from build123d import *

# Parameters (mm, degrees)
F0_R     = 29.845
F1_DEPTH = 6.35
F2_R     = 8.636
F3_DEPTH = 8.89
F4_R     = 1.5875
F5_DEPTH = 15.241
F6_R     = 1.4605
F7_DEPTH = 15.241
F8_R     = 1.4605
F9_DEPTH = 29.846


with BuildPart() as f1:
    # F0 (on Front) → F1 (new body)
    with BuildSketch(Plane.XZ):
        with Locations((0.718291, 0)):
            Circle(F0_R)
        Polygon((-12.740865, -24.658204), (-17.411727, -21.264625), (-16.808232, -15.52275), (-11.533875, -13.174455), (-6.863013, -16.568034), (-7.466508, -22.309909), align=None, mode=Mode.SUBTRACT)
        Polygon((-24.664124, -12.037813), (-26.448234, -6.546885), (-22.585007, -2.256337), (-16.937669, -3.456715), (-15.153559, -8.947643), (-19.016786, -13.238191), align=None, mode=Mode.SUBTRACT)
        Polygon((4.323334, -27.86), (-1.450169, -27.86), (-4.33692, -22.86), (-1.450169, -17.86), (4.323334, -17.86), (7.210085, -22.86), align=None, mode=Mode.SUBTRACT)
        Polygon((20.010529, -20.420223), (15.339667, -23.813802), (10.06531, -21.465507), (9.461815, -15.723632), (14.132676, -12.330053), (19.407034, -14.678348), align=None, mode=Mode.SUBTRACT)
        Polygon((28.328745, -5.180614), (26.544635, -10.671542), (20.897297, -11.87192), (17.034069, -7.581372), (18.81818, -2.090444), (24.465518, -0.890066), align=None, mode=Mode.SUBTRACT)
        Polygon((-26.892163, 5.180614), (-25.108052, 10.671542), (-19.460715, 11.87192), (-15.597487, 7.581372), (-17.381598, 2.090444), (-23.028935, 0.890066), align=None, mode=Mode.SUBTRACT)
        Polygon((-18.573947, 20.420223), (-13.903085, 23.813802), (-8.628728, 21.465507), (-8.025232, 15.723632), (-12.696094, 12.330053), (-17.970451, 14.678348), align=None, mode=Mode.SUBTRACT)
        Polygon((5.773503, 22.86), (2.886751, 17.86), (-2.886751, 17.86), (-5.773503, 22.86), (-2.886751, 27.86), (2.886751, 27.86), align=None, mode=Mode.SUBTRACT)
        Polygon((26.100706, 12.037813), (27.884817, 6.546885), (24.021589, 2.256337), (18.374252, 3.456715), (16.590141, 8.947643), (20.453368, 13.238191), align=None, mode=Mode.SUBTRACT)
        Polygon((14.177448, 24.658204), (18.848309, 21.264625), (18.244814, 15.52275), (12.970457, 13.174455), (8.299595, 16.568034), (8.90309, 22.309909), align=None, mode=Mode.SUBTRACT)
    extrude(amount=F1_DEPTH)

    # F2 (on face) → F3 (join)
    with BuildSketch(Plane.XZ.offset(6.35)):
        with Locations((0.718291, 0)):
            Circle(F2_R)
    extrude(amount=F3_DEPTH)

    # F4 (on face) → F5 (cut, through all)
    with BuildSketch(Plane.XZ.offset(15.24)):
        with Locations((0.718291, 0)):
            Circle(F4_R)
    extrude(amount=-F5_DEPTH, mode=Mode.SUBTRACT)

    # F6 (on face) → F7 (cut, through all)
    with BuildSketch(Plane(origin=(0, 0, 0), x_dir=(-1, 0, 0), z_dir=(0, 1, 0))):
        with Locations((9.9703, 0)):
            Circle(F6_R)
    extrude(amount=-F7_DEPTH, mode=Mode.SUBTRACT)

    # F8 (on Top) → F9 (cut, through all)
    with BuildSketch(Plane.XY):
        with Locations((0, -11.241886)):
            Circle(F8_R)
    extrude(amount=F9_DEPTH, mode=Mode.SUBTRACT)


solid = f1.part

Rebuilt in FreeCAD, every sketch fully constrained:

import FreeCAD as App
import Part
import Sketcher
Q = App.Units.Quantity


def add_polygon(sketch, points):
    """Adds a closed chain of lines whose ends are joined by coincident constraints."""
    first, n = sketch.GeometryCount, len(points)
    for a, b in zip(points, points[1:] + points[:1]):
        sketch.addGeometry(Part.LineSegment(App.Vector(*a, 0), App.Vector(*b, 0)), False)
    for i in range(n):
        sketch.addConstraint(Sketcher.Constraint("Coincident", first + i, 2, first + (i + 1) % n, 1))

doc = App.newDocument("Part")
body = doc.addObject("PartDesign::Body", "Body")

sketch1 = doc.addObject("Sketcher::SketchObject", "Sketch")
body.addObject(sketch1)
sketch1.AttachmentSupport = (doc.XZ_Plane, [""])
sketch1.MapMode = "FlatFace"
sketch1.addGeometry(Part.Circle(App.Vector(0.718291, 0, 0), App.Vector(0, 0, 1), 29.845), False)
add_polygon(sketch1, [(-7.466508, -22.309909), (-12.740865, -24.658204), (-17.411727, -21.264625), (-16.808232, -15.52275), (-11.533875, -13.174455), (-6.863013, -16.568034)])
add_polygon(sketch1, [(-19.016786, -13.238191), (-24.664124, -12.037813), (-26.448234, -6.546885), (-22.585007, -2.256337), (-16.937669, -3.456715), (-15.153559, -8.947643)])
add_polygon(sketch1, [(7.210085, -22.86), (4.323334, -27.86), (-1.450169, -27.86), (-4.33692, -22.86), (-1.450169, -17.86), (4.323334, -17.86)])
add_polygon(sketch1, [(19.407034, -14.678348), (20.010529, -20.420223), (15.339667, -23.813802), (10.06531, -21.465507), (9.461815, -15.723632), (14.132676, -12.330053)])
add_polygon(sketch1, [(24.465518, -0.890066), (28.328745, -5.180614), (26.544635, -10.671542), (20.897297, -11.87192), (17.034069, -7.581372), (18.81818, -2.090444)])
add_polygon(sketch1, [(-23.028935, 0.890066), (-26.892163, 5.180614), (-25.108052, 10.671542), (-19.460715, 11.87192), (-15.597487, 7.581372), (-17.381598, 2.090444)])
add_polygon(sketch1, [(-17.970451, 14.678348), (-18.573947, 20.420223), (-13.903085, 23.813802), (-8.628728, 21.465507), (-8.025232, 15.723632), (-12.696094, 12.330053)])
add_polygon(sketch1, [(2.886751, 27.86), (5.773503, 22.86), (2.886751, 17.86), (-2.886751, 17.86), (-5.773503, 22.86), (-2.886751, 27.86)])
add_polygon(sketch1, [(20.453368, 13.238191), (26.100706, 12.037813), (27.884817, 6.546885), (24.021589, 2.256337), (18.374252, 3.456715), (16.590141, 8.947643)])
add_polygon(sketch1, [(8.90309, 22.309909), (14.177448, 24.658204), (18.848309, 21.264625), (18.244814, 15.52275), (12.970457, 13.174455), (8.299595, 16.568034)])
sketch1.addConstraint([
    Sketcher.Constraint("Horizontal", 14),
    Sketcher.Constraint("Horizontal", 17),
    Sketcher.Constraint("Horizontal", 45),
    Sketcher.Constraint("Horizontal", 48),
    Sketcher.Constraint("Symmetric", 43, 2, 46, 2, -2),
    Sketcher.Constraint("PointOnObject", 0, 3, -1),
    Sketcher.Constraint("Parallel", 1, 4),
    Sketcher.Constraint("Parallel", 2, 5),
    Sketcher.Constraint("Parallel", 3, 6),
    Sketcher.Constraint("Parallel", 7, 10),
    Sketcher.Constraint("Parallel", 8, 11),
    Sketcher.Constraint("Parallel", 9, 12),
    Sketcher.Constraint("Parallel", 13, 16),
    Sketcher.Constraint("Parallel", 15, 18),
    Sketcher.Constraint("Parallel", 19, 22),
    Sketcher.Constraint("Parallel", 20, 23),
    Sketcher.Constraint("Parallel", 21, 24),
    Sketcher.Constraint("Parallel", 25, 28),
    Sketcher.Constraint("Parallel", 26, 29),
    Sketcher.Constraint("Parallel", 27, 30),
    Sketcher.Constraint("Parallel", 28, 31),
    Sketcher.Constraint("Parallel", 29, 32),
    Sketcher.Constraint("Parallel", 30, 33),
    Sketcher.Constraint("Parallel", 31, 34),
    Sketcher.Constraint("Parallel", 32, 35),
    Sketcher.Constraint("Parallel", 33, 36),
    Sketcher.Constraint("Parallel", 22, 37),
    Sketcher.Constraint("Parallel", 23, 38),
    Sketcher.Constraint("Parallel", 24, 39),
    Sketcher.Constraint("Parallel", 37, 40),
    Sketcher.Constraint("Parallel", 38, 41),
    Sketcher.Constraint("Parallel", 39, 42),
    Sketcher.Constraint("Parallel", 18, 43),
    Sketcher.Constraint("Parallel", 16, 44),
    Sketcher.Constraint("Parallel", 43, 46),
    Sketcher.Constraint("Parallel", 44, 47),
    Sketcher.Constraint("Parallel", 10, 49),
    Sketcher.Constraint("Parallel", 11, 50),
    Sketcher.Constraint("Parallel", 12, 51),
    Sketcher.Constraint("Parallel", 49, 52),
    Sketcher.Constraint("Parallel", 50, 53),
    Sketcher.Constraint("Parallel", 51, 54),
    Sketcher.Constraint("Parallel", 4, 55),
    Sketcher.Constraint("Parallel", 5, 56),
    Sketcher.Constraint("Parallel", 6, 57),
    Sketcher.Constraint("Parallel", 55, 58),
    Sketcher.Constraint("Parallel", 56, 59),
    Sketcher.Constraint("Parallel", 57, 60),
    Sketcher.Constraint("Horizontal", 15, 2, 18, 2),
    Sketcher.Constraint("Vertical", 14, 2, 16, 2),
    Sketcher.Constraint("Vertical", 13, 2, 17, 2),
    Sketcher.Constraint("Vertical", 45, 2, 47, 2),
    Sketcher.Constraint("Equal", 17, 45),
    Sketcher.Constraint("Equal", 1, 2),
    Sketcher.Constraint("Equal", 2, 3),
    Sketcher.Constraint("Equal", 3, 4),
    Sketcher.Constraint("Equal", 6, 7),
    Sketcher.Constraint("Equal", 7, 8),
    Sketcher.Constraint("Equal", 8, 9),
    Sketcher.Constraint("Equal", 9, 10),
    Sketcher.Constraint("Equal", 12, 13),
    Sketcher.Constraint("Equal", 18, 19),
    Sketcher.Constraint("Equal", 19, 20),
    Sketcher.Constraint("Equal", 20, 21),
    Sketcher.Constraint("Equal", 21, 22),
    Sketcher.Constraint("Equal", 24, 25),
    Sketcher.Constraint("Equal", 25, 26),
    Sketcher.Constraint("Equal", 26, 27),
    Sketcher.Constraint("Equal", 27, 28),
    Sketcher.Constraint("Equal", 30, 31),
    Sketcher.Constraint("Equal", 31, 32),
    Sketcher.Constraint("Equal", 32, 33),
    Sketcher.Constraint("Equal", 33, 34),
    Sketcher.Constraint("Equal", 36, 37),
    Sketcher.Constraint("Equal", 37, 38),
    Sketcher.Constraint("Equal", 38, 39),
    Sketcher.Constraint("Equal", 39, 40),
    Sketcher.Constraint("Equal", 42, 43),
    Sketcher.Constraint("Equal", 47, 49),
    Sketcher.Constraint("Equal", 49, 50),
    Sketcher.Constraint("Equal", 50, 51),
    Sketcher.Constraint("Equal", 51, 52),
    Sketcher.Constraint("Equal", 54, 55),
    Sketcher.Constraint("Equal", 55, 56),
    Sketcher.Constraint("Equal", 56, 57),
    Sketcher.Constraint("Equal", 57, 58),
    Sketcher.Constraint("Diameter", 0, Q("2.35 in")),
    Sketcher.Constraint("Angle", 1, Q("-156 deg")),
    Sketcher.Constraint("Angle", 2, Q("144.000007 deg")),
    Sketcher.Constraint("Angle", 3, Q("84.000004 deg")),
    Sketcher.Constraint("Angle", 7, Q("168.000007 deg")),
    Sketcher.Constraint("Angle", 8, Q("107.999994 deg")),
    Sketcher.Constraint("Angle", 9, Q("47.999998 deg")),
    Sketcher.Constraint("Angle", 13, Q("-119.999997 deg")),
    Sketcher.Constraint("Angle", 19, Q("-84.000004 deg")),
    Sketcher.Constraint("Angle", 20, Q("-144.000007 deg")),
    Sketcher.Constraint("Angle", 21, Q("156 deg")),
    Sketcher.Constraint("Angle", 25, Q("-47.999998 deg")),
    Sketcher.Constraint("Angle", 26, Q("-107.999994 deg")),
    Sketcher.Constraint("Angle", 27, Q("-168.000007 deg")),
    Sketcher.Constraint("DistanceY", 15, 2, -1, 1, Q("0.9 in")),
    Sketcher.Constraint("DistanceY", -1, 1, 43, 2, Q("0.9 in")),
    Sketcher.Constraint("DistanceX", 45, 2, 45, 1, 5.773502),
    Sketcher.Constraint("Distance", 9, 5.773502),
    Sketcher.Constraint("DistanceY", 20, 2, -1, 1, 23.813802),
    Sketcher.Constraint("DistanceX", 35, 2, -1, 1, 17.381598),
    Sketcher.Constraint("DistanceY", -1, 1, 38, 2, 23.813802),
    Sketcher.Constraint("DistanceX", -1, 1, 0, 3, 0.718291),
    Sketcher.Constraint("DistanceY", 3, 2, -1, 1, 15.52275),
    Sketcher.Constraint("DistanceX", 10, 2, -1, 1, 16.937669),
    Sketcher.Constraint("DistanceY", 12, 2, -1, 1, 13.238191),
    Sketcher.Constraint("DistanceX", 14, 2, -1, 1, 1.450169),
    Sketcher.Constraint("DistanceX", -1, 1, 19, 2, 20.010529),
    Sketcher.Constraint("DistanceY", 27, 2, -1, 1, 11.87192),
    Sketcher.Constraint("DistanceX", -1, 1, 28, 2, 17.034069),
    Sketcher.Constraint("DistanceY", -1, 1, 33, 2, 11.87192),
    Sketcher.Constraint("DistanceX", 39, 2, -1, 1, 8.628728),
    Sketcher.Constraint("DistanceX", -1, 1, 51, 2, 24.021589),
    Sketcher.Constraint("DistanceY", -1, 1, 54, 2, 13.238191),
    Sketcher.Constraint("DistanceX", -1, 1, 56, 2, 18.848309),
    Sketcher.Constraint("DistanceY", -1, 1, 57, 2, 15.52275),
    Sketcher.Constraint("DistanceX", 1, 2, -1, 1, 12.740865),
])
pad1 = doc.addObject("PartDesign::Pad", "Pad")
body.addObject(pad1)
pad1.Profile = sketch1
pad1.Length = Q("0.25 in")

sketch2 = doc.addObject("Sketcher::SketchObject", "Sketch001")
body.addObject(sketch2)
sketch2.AttachmentSupport = (doc.XZ_Plane, [""])
sketch2.MapMode = "FlatFace"
sketch2.AttachmentOffset = App.Placement(App.Vector(0, 0, 0.25 * 25.4), App.Rotation())
sketch2.addGeometry(Part.Circle(App.Vector(0.718291, 0, 0), App.Vector(0, 0, 1), 8.636), False)
sketch2.addConstraint([
    Sketcher.Constraint("PointOnObject", 0, 3, -1),
    Sketcher.Constraint("Diameter", 0, Q("0.68 in")),
    Sketcher.Constraint("DistanceX", -1, 1, 0, 3, 0.718291),
])
pad2 = doc.addObject("PartDesign::Pad", "Pad001")
body.addObject(pad2)
pad2.Profile = sketch2
pad2.Length = Q("0.35 in")

sketch3 = doc.addObject("Sketcher::SketchObject", "Sketch002")
body.addObject(sketch3)
sketch3.AttachmentSupport = (doc.XZ_Plane, [""])
sketch3.MapMode = "FlatFace"
sketch3.AttachmentOffset = App.Placement(App.Vector(0, 0, 0.6 * 25.4), App.Rotation())
sketch3.addGeometry(Part.Circle(App.Vector(0.718291, 0, 0), App.Vector(0, 0, 1), 1.5875), False)
sketch3.addConstraint([
    Sketcher.Constraint("PointOnObject", 0, 3, -1),
    Sketcher.Constraint("Diameter", 0, Q("0.125 in")),
    Sketcher.Constraint("DistanceX", -1, 1, 0, 3, 0.718291),
])
pocket1 = doc.addObject("PartDesign::Pocket", "Pocket")
body.addObject(pocket1)
pocket1.Profile = sketch3
pocket1.Type = "ThroughAll"

sketch4 = doc.addObject("Sketcher::SketchObject", "Sketch003")
body.addObject(sketch4)
sketch4.AttachmentSupport = (doc.XZ_Plane, [""])
sketch4.MapMode = "FlatFace"
sketch4.addGeometry(Part.Circle(App.Vector(-9.9703, 0, 0), App.Vector(0, 0, 1), 1.4605), False)
sketch4.addConstraint([
    Sketcher.Constraint("PointOnObject", 0, 3, -1),
    Sketcher.Constraint("Diameter", 0, Q("0.115 in")),
    Sketcher.Constraint("DistanceX", 0, 3, -1, 1, 9.9703),
])
pocket2 = doc.addObject("PartDesign::Pocket", "Pocket001")
body.addObject(pocket2)
pocket2.Profile = sketch4
pocket2.Type = "ThroughAll"
pocket2.Reversed = True

sketch5 = doc.addObject("Sketcher::SketchObject", "Sketch004")
body.addObject(sketch5)
sketch5.AttachmentSupport = (doc.XY_Plane, [""])
sketch5.MapMode = "FlatFace"
sketch5.addGeometry(Part.Circle(App.Vector(0, -11.241886, 0), App.Vector(0, 0, 1), 1.4605), False)
sketch5.addConstraint([
    Sketcher.Constraint("PointOnObject", 0, 3, -2),
    Sketcher.Constraint("Diameter", 0, Q("0.115 in")),
    Sketcher.Constraint("DistanceY", 0, 3, -1, 1, 11.241886),
])
pocket3 = doc.addObject("PartDesign::Pocket", "Pocket002")
body.addObject(pocket3)
pocket3.Profile = sketch5
pocket3.Type = "ThroughAll"
pocket3.Reversed = True

doc.recompute()
